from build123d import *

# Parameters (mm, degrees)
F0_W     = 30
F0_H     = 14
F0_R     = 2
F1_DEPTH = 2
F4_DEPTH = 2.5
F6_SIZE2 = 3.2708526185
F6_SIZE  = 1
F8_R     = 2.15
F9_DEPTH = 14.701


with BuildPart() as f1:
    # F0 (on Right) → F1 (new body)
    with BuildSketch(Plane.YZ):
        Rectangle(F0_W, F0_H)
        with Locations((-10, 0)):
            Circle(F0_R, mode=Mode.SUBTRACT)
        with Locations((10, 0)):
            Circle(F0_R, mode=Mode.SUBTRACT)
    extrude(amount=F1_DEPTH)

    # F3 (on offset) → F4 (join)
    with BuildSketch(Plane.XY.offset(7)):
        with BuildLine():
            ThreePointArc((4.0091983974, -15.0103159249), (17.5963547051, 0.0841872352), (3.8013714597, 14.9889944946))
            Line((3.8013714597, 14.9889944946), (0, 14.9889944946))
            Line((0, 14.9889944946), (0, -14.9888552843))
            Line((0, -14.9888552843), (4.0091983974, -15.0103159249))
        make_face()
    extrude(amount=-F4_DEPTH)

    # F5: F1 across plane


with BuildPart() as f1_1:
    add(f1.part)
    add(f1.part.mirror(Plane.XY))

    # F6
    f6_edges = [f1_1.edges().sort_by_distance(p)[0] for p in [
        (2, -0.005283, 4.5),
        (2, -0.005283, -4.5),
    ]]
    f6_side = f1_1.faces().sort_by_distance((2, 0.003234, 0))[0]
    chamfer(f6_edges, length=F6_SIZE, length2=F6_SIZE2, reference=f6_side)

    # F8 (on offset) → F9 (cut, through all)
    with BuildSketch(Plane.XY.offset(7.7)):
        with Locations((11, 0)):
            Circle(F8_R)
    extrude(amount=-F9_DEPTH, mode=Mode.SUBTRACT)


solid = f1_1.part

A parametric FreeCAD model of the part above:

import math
import FreeCAD as App
import Part
import Sketcher

V = App.Vector
Q = App.Units.Quantity


def edges_at(feature, points):
    """Names of the edges that pass closest to the given points."""
    edges = feature.Shape.Edges
    near = lambda p: min(range(len(edges)), key=lambda i: edges[i].distToShape(Part.Vertex(*p))[0])
    return sorted({f"Edge{near(p) + 1}" for p in points})


def add_polygon(sketch, points):
    """Adds a closed chain of lines whose ends are joined by coincident constraints."""
    first, n = sketch.GeometryCount, len(points)
    for a, b in zip(points, points[1:] + points[:1]):
        sketch.addGeometry(Part.LineSegment(App.Vector(*a, 0), App.Vector(*b, 0)), False)
    for i in range(n):
        sketch.addConstraint(Sketcher.Constraint("Coincident", first + i, 2, first + (i + 1) % n, 1))

doc = App.newDocument("Part")
body = doc.addObject("PartDesign::Body", "Body")

sketch1 = body.newObject("Sketcher::SketchObject", "Sketch")
sketch1.AttachmentSupport = (doc.getObject("YZ_Plane"), [""])
sketch1.MapMode = "FlatFace"
add_polygon(sketch1, [(-15, 7), (-15, -7), (15, -7), (15, 7)])
sketch1.addGeometry(Part.Circle(V(-10, 0, 0), V(0, 0, 1), 2), False)
sketch1.addGeometry(Part.Circle(V(10, 0, 0), V(0, 0, 1), 2), False)
sketch1.addConstraint(Sketcher.Constraint("Vertical", 0))
sketch1.addConstraint(Sketcher.Constraint("Horizontal", 1))
sketch1.addConstraint(Sketcher.Constraint("Vertical", 2))
sketch1.addConstraint(Sketcher.Constraint("Horizontal", 3))
sketch1.addConstraint(Sketcher.Constraint("Equal", 4, 5))
sketch1.addConstraint(Sketcher.Constraint("Symmetric", 4, 3, 5, 3, -1, 1))
sketch1.addConstraint(Sketcher.Constraint("Symmetric", 0, 2, 2, 2, -1, 1))
sketch1.addConstraint(Sketcher.Constraint("PointOnObject", 4, 3, -1))
sketch1.addConstraint(Sketcher.Constraint("Diameter", 4, Q("4 mm")))
sketch1.addConstraint(Sketcher.Constraint("DistanceX", 1, 1, 1, 2, Q("30 mm")))
sketch1.addConstraint(Sketcher.Constraint("DistanceY", 0, 2, 0, 1, Q("14 mm")))
sketch1.addConstraint(Sketcher.Constraint("DistanceX", 4, 3, -1, 1, Q("10 mm")))
pad1 = body.newObject("PartDesign::Pad", "Pad")
pad1.Profile = sketch1
pad1.Length = 2

sketch2 = body.newObject("Sketcher::SketchObject", "Sketch001")
sketch2.AttachmentSupport = (doc.getObject("XY_Plane"), [""])
sketch2.MapMode = "FlatFace"
sketch2.AttachmentOffset = App.Placement(V(0, 0, 7), App.Rotation())
sketch2.addGeometry(Part.ArcOfCircle(Part.Circle(V(2.5, 0, 0), V(0, 0, 1), 15.1), math.radians(-84), math.radians(85)), False)
sketch2.addGeometry(Part.LineSegment(V(3.8, 15, 0), V(0, 15, 0)), False)
sketch2.addGeometry(Part.LineSegment(V(0, 15, 0), V(0, -15, 0)), False)
sketch2.addGeometry(Part.LineSegment(V(0, -15, 0), V(4, -15, 0)), False)
sketch2.addConstraint(Sketcher.Constraint("Coincident", 0, 2, 1, 1))
sketch2.addConstraint(Sketcher.Constraint("Coincident", 1, 2, 2, 1))
sketch2.addConstraint(Sketcher.Constraint("Coincident", 2, 2, 3, 1))
sketch2.addConstraint(Sketcher.Constraint("Coincident", 3, 2, 0, 1))
sketch2.addConstraint(Sketcher.Constraint("Horizontal", 1))
sketch2.addConstraint(Sketcher.Constraint("Vertical", 2))
sketch2.addConstraint(Sketcher.Constraint("PointOnObject", 1, 2, -2))
sketch2.addConstraint(Sketcher.Constraint("Radius", 0, Q("15.062554 mm")))
sketch2.addConstraint(Sketcher.Constraint("DistanceX", 1, 2, 1, 1, Q("3.801371 mm")))
sketch2.addConstraint(Sketcher.Constraint("DistanceY", 2, 2, 2, 1, Q("29.97785 mm")))
sketch2.addConstraint(Sketcher.Constraint("DistanceX", -1, 1, 3, 2, Q("4.009198 mm")))
sketch2.addConstraint(Sketcher.Constraint("DistanceY", 0, 3, -1, 1, Q("0.020159 mm")))
sketch2.addConstraint(Sketcher.Constraint("DistanceX", 0, 3, 0, 2, Q("1.267209 mm")))
pad2 = body.newObject("PartDesign::Pad", "Pad001")
pad2.Profile = sketch2
pad2.Length = 2.5
pad2.Reversed = True
body2 = doc.addObject("PartDesign::Body", "Body001")
doc.recompute()

body2.BaseFeature = body
doc.recompute()

mirroring = doc.addObject("Part::Mirroring", "Mirroring")
mirroring.Source = body
mirroring.Base = V(0, 0, 0)
mirroring.Normal = V(0, 0, 1)
body3 = doc.addObject("PartDesign::Body", "Body002")
body3.BaseFeature = mirroring
boolean = body2.newObject("PartDesign::Boolean", "Boolean")
boolean.Type = "Fuse"
boolean.addObjects([body3])
doc.recompute()

chamfer = body2.newObject("PartDesign::Chamfer", "Chamfer")
chamfer.Base = (boolean, edges_at(boolean, [(2, -0.005, 4.5), (2, -0.005, -4.5)]))
chamfer.ChamferType = "Two distances"
chamfer.Size = 1
chamfer.Size2 = 3.270853

sketch3 = body2.newObject("Sketcher::SketchObject", "Sketch002")
sketch3.AttachmentSupport = (doc.getObject("XY_Plane001"), [""])
sketch3.MapMode = "FlatFace"
sketch3.AttachmentOffset = App.Placement(V(0, 0, 7.7), App.Rotation())
sketch3.addGeometry(Part.Circle(V(11, 0, 0), V(0, 0, 1), 2.1), False)
sketch3.addConstraint(Sketcher.Constraint("PointOnObject", 0, 3, -1))
sketch3.addConstraint(Sketcher.Constraint("Diameter", 0, Q("4.3 mm")))
sketch3.addConstraint(Sketcher.Constraint("DistanceX", -1, 1, 0, 3, Q("11 mm")))
pocket1 = body2.newObject("PartDesign::Pocket", "Pocket")
pocket1.Profile = sketch3
pocket1.Type = "ThroughAll"
mirroring.Visibility = False

doc.recompute()
